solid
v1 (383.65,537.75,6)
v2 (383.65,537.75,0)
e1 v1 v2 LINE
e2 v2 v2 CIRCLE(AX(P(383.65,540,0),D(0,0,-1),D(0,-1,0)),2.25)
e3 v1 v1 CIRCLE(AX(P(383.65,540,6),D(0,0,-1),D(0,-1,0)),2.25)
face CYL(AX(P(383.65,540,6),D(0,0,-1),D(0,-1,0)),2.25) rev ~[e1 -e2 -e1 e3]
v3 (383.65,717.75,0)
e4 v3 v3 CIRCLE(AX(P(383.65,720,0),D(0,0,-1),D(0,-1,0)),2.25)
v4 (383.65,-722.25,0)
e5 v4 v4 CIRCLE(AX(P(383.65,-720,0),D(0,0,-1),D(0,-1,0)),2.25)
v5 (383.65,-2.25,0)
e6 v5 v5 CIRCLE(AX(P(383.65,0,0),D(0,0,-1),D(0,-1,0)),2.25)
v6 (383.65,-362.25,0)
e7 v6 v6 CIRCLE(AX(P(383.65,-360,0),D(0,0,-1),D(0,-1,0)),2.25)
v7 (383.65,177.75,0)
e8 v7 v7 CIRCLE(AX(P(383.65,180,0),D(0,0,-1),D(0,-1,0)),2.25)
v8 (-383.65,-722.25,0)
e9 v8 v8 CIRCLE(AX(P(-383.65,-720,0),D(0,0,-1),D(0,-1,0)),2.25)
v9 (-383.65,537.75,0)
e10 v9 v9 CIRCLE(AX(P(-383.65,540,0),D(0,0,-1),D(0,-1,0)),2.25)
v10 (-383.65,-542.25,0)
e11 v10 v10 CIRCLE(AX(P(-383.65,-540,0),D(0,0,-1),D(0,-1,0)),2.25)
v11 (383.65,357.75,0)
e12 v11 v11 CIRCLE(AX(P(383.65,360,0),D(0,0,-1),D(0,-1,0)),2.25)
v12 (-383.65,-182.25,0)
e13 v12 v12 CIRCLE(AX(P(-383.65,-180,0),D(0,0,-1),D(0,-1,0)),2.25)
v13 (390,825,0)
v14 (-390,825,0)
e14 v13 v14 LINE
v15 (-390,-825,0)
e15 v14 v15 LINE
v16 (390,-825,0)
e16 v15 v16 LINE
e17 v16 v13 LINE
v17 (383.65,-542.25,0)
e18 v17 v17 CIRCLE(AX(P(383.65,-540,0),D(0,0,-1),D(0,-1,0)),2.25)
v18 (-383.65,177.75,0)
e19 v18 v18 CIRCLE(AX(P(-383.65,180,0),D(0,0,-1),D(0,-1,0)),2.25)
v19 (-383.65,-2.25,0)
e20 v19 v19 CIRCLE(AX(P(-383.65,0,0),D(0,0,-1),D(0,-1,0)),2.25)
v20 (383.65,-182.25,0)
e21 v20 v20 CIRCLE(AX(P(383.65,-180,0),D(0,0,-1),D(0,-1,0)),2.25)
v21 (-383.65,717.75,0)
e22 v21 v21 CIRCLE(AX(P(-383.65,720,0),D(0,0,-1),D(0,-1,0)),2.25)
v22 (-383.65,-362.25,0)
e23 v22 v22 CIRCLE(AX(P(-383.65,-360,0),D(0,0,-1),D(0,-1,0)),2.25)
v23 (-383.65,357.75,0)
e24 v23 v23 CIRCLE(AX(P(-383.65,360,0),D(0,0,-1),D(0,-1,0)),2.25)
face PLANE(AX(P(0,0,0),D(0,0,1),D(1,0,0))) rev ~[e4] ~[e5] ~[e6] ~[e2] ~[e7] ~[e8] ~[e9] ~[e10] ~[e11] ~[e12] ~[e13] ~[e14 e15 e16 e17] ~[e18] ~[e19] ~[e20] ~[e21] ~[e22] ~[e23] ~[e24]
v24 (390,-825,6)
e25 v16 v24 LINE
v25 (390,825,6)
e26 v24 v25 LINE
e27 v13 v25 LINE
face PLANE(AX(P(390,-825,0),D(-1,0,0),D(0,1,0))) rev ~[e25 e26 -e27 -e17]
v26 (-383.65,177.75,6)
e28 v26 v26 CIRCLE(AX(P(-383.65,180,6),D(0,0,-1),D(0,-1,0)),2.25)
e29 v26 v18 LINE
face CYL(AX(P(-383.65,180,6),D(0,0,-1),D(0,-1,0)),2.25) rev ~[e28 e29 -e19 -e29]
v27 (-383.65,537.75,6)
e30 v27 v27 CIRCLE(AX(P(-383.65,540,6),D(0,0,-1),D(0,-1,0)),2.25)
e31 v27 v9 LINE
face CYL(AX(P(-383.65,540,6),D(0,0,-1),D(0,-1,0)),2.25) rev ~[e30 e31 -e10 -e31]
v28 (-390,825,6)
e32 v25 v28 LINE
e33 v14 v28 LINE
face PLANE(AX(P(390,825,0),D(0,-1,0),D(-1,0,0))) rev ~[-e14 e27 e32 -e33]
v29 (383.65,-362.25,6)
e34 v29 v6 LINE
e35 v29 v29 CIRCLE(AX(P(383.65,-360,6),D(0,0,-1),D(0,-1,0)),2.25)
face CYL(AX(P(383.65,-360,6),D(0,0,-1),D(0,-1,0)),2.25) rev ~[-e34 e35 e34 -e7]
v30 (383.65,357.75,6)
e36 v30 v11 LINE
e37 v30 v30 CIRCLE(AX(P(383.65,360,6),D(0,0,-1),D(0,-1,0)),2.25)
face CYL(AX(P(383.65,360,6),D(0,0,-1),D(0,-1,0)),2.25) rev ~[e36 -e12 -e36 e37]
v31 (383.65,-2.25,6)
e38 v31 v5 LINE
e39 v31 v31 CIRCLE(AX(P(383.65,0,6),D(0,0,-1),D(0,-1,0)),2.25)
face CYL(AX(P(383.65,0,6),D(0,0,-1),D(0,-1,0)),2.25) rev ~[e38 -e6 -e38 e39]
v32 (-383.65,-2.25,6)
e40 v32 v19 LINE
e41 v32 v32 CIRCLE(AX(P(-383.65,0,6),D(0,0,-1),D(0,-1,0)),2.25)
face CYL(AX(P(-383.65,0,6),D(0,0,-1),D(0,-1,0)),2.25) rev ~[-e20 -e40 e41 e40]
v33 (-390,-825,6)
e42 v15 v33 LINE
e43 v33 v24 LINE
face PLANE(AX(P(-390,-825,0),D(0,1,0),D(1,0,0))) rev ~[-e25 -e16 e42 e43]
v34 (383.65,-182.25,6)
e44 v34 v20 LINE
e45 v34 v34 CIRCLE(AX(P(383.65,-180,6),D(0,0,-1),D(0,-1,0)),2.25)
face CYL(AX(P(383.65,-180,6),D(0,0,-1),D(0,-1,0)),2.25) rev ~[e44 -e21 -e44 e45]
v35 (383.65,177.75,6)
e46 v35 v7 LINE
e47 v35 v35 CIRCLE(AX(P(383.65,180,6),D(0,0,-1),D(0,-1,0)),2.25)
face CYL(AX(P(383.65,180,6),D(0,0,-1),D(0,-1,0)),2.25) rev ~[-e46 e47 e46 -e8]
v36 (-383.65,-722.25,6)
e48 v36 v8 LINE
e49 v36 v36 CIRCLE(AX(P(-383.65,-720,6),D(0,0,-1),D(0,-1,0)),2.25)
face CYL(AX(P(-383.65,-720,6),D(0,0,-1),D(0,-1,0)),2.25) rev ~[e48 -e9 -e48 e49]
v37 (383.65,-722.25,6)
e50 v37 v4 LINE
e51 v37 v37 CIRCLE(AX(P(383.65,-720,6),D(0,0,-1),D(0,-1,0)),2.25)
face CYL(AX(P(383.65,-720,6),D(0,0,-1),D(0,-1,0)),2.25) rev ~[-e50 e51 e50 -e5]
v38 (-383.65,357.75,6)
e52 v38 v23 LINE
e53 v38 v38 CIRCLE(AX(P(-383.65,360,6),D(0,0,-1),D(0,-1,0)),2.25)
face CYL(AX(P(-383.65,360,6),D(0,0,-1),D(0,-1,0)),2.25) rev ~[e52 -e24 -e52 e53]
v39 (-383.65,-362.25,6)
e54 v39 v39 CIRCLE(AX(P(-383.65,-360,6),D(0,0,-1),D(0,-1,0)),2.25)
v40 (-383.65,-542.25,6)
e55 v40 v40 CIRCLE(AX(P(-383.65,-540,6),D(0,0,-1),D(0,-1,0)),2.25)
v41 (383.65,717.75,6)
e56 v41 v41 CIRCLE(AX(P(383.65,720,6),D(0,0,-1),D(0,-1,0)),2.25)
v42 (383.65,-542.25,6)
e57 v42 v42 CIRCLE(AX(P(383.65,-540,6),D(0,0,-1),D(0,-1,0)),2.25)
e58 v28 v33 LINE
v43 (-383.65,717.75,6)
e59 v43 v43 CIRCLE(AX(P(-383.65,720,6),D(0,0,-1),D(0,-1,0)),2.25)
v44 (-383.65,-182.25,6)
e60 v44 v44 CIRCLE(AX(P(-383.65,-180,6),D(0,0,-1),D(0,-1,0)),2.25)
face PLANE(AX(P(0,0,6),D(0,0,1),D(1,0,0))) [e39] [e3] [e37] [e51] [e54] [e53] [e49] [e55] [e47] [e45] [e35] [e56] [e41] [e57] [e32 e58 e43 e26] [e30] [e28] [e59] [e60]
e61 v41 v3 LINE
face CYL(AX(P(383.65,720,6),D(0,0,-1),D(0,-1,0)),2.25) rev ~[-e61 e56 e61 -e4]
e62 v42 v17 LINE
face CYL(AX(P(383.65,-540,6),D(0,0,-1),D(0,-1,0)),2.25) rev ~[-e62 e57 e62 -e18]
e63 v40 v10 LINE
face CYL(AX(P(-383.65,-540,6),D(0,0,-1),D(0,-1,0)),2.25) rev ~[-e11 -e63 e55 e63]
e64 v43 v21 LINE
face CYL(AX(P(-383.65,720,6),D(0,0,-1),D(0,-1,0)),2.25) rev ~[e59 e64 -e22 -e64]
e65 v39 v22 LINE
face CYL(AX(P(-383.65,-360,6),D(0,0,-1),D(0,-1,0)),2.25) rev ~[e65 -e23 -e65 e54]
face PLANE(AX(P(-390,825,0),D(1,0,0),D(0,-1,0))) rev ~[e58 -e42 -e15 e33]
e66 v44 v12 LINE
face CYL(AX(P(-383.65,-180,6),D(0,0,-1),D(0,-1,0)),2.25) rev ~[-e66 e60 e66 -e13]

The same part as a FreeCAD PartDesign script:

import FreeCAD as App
import Part
import Sketcher

V = App.Vector
Q = App.Units.Quantity

doc = App.newDocument("Part")
body = doc.addObject("PartDesign::Body", "Body")

sketch1 = doc.addObject("Sketcher::SketchObject", "Sketch")
body.addObject(sketch1)
sketch1.AttachmentSupport = (doc.XY_Plane, [""])
sketch1.MapMode = "FlatFace"
sketch1.addGeometry([
    Part.LineSegment(V(-390, 825, 0), V(-390, -825, 0)),
    Part.LineSegment(V(-390, -825, 0), V(390, -825, 0)),
    Part.LineSegment(V(390, -825, 0), V(390, 825, 0)),
    Part.LineSegment(V(390, 825, 0), V(-390, 825, 0)),
], False)
sketch1.addConstraint([
    Sketcher.Constraint("Coincident", 0, 2, 1, 1),
    Sketcher.Constraint("Coincident", 1, 2, 2, 1),
    Sketcher.Constraint("Coincident", 2, 2, 3, 1),
    Sketcher.Constraint("Coincident", 3, 2, 0, 1),
    Sketcher.Constraint("Vertical", 0),
    Sketcher.Constraint("Horizontal", 1),
    Sketcher.Constraint("Vertical", 2),
    Sketcher.Constraint("Horizontal", 3),
    Sketcher.Constraint("Symmetric", 0, 2, 2, 2, -1, 1),
    Sketcher.Constraint("DistanceX", 1, 1, 1, 2, Q("780 mm")),
    Sketcher.Constraint("DistanceY", 0, 2, 0, 1, Q("1650 mm")),
])
pad1 = doc.addObject("PartDesign::Pad", "Pad")
body.addObject(pad1)
pad1.Profile = sketch1
pad1.Length = 6

sketch2 = doc.addObject("Sketcher::SketchObject", "Sketch001")
body.addObject(sketch2)
sketch2.AttachmentSupport = (doc.XY_Plane, [""])
sketch2.MapMode = "FlatFace"
sketch2.AttachmentOffset = App.Placement(V(0, 0, 6), App.Rotation())
sketch2.addGeometry([
    Part.Circle(V(-383.65, 720, 0), V(0, 0, 1), 2.25),
    Part.Circle(V(-383.65, 540, 0), V(0, 0, 1), 2.25),
    Part.Circle(V(-383.65, 360, 0), V(0, 0, 1), 2.25),
    Part.Circle(V(-383.65, 180, 0), V(0, 0, 1), 2.25),
    Part.Circle(V(-383.65, 0, 0), V(0, 0, 1), 2.25),
    Part.Circle(V(-383.65, -180, 0), V(0, 0, 1), 2.25),
    Part.Circle(V(-383.65, -360, 0), V(0, 0, 1), 2.25),
    Part.Circle(V(-383.65, -540, 0), V(0, 0, 1), 2.25),
    Part.Circle(V(-383.65, -720, 0), V(0, 0, 1), 2.25),
    Part.Circle(V(383.65, 720, 0), V(0, 0, 1), 2.25),
    Part.Circle(V(383.65, 540, 0), V(0, 0, 1), 2.25),
    Part.Circle(V(383.65, 360, 0), V(0, 0, 1), 2.25),
    Part.Circle(V(383.65, 180, 0), V(0, 0, 1), 2.25),
    Part.Circle(V(383.65, 0, 0), V(0, 0, 1), 2.25),
    Part.Circle(V(383.65, -180, 0), V(0, 0, 1), 2.25),
    Part.Circle(V(383.65, -360, 0), V(0, 0, 1), 2.25),
    Part.Circle(V(383.65, -540, 0), V(0, 0, 1), 2.25),
    Part.Circle(V(383.65, -720, 0), V(0, 0, 1), 2.25),
], False)
sketch2.addConstraint([
    Sketcher.Constraint("Equal", 0, 1),
    Sketcher.Constraint("Equal", 1, 2),
    Sketcher.Constraint("Equal", 2, 3),
    Sketcher.Constraint("Equal", 3, 4),
    Sketcher.Constraint("Equal", 4, 5),
    Sketcher.Constraint("Equal", 5, 6),
    Sketcher.Constraint("Equal", 6, 7),
    Sketcher.Constraint("Equal", 7, 8),
    Sketcher.Constraint("Equal", 8, 9),
    Sketcher.Constraint("Equal", 9, 10),
    Sketcher.Constraint("Equal", 10, 11),
    Sketcher.Constraint("Equal", 11, 12),
    Sketcher.Constraint("Equal", 12, 13),
    Sketcher.Constraint("Equal", 13, 14),
    Sketcher.Constraint("Equal", 14, 15),
    Sketcher.Constraint("Equal", 15, 16),
    Sketcher.Constraint("Equal", 16, 17),
    Sketcher.Constraint("Symmetric", 8, 3, 9, 3, -1, 1),
    Sketcher.Constraint("Symmetric", 7, 3, 10, 3, -1, 1),
    Sketcher.Constraint("Symmetric", 6, 3, 11, 3, -1, 1),
    Sketcher.Constraint("Symmetric", 5, 3, 12, 3, -1, 1),
    Sketcher.Constraint("Symmetric", 4, 3, 13, 3, -1, 1),
    Sketcher.Constraint("Symmetric", 3, 3, 14, 3, -1, 1),
    Sketcher.Constraint("Symmetric", 2, 3, 15, 3, -1, 1),
    Sketcher.Constraint("Symmetric", 1, 3, 16, 3, -1, 1),
    Sketcher.Constraint("Symmetric", 0, 3, 17, 3, -1, 1),
    Sketcher.Constraint("Symmetric", 0, 3, 9, 3, -2),
    Sketcher.Constraint("Symmetric", 1, 3, 10, 3, -2),
    Sketcher.Constraint("Symmetric", 2, 3, 11, 3, -2),
    Sketcher.Constraint("Symmetric", 3, 3, 12, 3, -2),
    Sketcher.Constraint("PointOnObject", 4, 3, -1),
    Sketcher.Constraint("Vertical", 0, 3, 1, 3),
    Sketcher.Constraint("Vertical", 1, 3, 2, 3),
    Sketcher.Constraint("Vertical", 2, 3, 3, 3),
    Sketcher.Constraint("Vertical", 3, 3, 4, 3),
    Sketcher.Constraint("Diameter", 0, Q("4.5 mm")),
    Sketcher.Constraint("DistanceY", -1, 1, 0, 3, Q("720 mm")),
    Sketcher.Constraint("DistanceY", -1, 1, 1, 3, Q("540 mm")),
    Sketcher.Constraint("DistanceY", -1, 1, 2, 3, Q("360 mm")),
    Sketcher.Constraint("DistanceY", -1, 1, 3, 3, Q("180 mm")),
    Sketcher.Constraint("DistanceX", 0, 3, 9, 3, Q("767.3 mm")),
])
doc.recompute()
hole = doc.addObject("PartDesign::Hole", "Hole")
body.addObject(hole)
hole.Profile = sketch2
hole.ThreadType = "None"
hole.Diameter = 4.5
hole.DepthType = "Dimension"
hole.Depth = 8
hole.DrillPoint = "Angled"
hole.DrillPointAngle = 118

doc.recompute()
